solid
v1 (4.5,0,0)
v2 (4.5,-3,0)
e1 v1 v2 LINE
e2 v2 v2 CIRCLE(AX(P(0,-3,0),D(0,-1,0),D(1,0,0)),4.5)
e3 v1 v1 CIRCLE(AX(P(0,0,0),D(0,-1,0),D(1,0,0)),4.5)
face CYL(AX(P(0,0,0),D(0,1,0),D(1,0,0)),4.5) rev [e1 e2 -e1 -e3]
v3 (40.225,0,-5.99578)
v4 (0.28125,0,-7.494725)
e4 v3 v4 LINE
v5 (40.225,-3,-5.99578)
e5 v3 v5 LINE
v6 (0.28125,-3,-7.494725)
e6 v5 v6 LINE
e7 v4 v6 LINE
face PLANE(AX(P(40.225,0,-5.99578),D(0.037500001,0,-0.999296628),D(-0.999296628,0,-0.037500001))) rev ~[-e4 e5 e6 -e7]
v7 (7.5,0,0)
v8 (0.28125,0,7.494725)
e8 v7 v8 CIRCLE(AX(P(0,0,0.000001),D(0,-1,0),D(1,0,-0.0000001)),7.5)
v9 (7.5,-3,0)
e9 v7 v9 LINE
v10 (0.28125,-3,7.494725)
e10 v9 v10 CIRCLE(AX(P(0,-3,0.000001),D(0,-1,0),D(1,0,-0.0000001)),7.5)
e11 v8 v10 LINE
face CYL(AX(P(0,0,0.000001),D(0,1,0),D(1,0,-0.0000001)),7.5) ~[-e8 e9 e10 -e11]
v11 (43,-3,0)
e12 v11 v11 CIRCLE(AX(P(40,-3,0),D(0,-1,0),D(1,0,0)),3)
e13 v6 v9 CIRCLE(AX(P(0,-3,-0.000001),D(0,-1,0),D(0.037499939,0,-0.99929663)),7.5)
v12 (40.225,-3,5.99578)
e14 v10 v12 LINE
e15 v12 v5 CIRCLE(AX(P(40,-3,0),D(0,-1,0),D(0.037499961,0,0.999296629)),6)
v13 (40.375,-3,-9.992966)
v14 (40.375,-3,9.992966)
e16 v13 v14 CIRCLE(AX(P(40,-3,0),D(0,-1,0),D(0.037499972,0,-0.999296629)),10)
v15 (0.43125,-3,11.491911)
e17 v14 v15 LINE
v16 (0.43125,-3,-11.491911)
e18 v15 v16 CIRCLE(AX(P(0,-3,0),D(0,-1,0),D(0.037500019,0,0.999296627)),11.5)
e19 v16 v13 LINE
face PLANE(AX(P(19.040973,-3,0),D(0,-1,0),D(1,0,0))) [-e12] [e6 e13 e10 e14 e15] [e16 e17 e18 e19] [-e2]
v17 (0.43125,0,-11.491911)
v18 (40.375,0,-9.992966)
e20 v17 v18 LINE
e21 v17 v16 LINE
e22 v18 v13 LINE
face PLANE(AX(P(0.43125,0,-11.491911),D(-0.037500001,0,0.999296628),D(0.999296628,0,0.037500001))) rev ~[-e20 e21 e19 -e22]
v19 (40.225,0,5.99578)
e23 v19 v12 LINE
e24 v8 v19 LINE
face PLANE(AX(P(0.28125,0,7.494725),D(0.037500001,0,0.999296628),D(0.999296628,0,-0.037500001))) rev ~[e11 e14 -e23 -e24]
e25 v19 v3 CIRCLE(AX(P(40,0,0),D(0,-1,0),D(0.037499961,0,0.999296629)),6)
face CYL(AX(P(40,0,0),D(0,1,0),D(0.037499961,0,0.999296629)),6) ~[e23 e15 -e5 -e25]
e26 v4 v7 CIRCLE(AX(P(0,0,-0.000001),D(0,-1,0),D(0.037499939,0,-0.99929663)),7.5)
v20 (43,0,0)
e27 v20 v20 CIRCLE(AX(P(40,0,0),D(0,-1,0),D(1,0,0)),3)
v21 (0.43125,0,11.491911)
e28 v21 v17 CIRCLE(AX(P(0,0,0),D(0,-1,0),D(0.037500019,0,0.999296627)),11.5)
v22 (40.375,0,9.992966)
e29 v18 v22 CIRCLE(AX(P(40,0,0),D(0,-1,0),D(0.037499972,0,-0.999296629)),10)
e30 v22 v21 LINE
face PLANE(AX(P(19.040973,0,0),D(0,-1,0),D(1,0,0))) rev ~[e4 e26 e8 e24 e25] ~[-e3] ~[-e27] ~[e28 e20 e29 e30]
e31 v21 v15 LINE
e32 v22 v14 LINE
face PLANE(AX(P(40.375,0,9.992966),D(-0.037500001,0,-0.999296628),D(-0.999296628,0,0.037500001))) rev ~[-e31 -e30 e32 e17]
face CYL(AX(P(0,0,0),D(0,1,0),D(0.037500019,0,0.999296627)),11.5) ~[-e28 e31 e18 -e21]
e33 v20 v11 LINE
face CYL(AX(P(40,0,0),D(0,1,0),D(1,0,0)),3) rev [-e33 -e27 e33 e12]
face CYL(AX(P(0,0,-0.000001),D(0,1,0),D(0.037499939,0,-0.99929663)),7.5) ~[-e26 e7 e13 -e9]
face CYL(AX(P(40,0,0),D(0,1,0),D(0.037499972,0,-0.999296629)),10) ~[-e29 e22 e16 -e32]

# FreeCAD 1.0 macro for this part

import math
import FreeCAD as App
import Part
import Sketcher
from FreeCAD import Vector
Q = App.Units.Quantity

doc = App.newDocument("Part")
body = doc.addObject("PartDesign::Body", "Body")

sketch1 = body.newObject("Sketcher::SketchObject", "Sketch")
sketch1.AttachmentSupport = (doc.getObject("XZ_Plane"), [""])
sketch1.MapMode = "FlatFace"
sketch1.addGeometry(Part.LineSegment(Vector(40.4, 10, 0), Vector(0.4, 11.5, 0)), False)
sketch1.addGeometry(Part.ArcOfCircle(Part.Circle(Vector(0, 0, 0), Vector(0, 0, 1), 11.5), math.radians(88), math.radians(272)), False)
sketch1.addGeometry(Part.LineSegment(Vector(0.4, -11.5, 0), Vector(40.4, -10, 0)), False)
sketch1.addGeometry(Part.ArcOfCircle(Part.Circle(Vector(40, 0, 0), Vector(0, 0, 1), 10), math.radians(-88), math.radians(88)), False)
sketch1.addGeometry(Part.Circle(Vector(40, 0, 0), Vector(0, 0, 1), 3), False)
sketch1.addGeometry(Part.Circle(Vector(0, 0, 0), Vector(0, 0, 1), 4.5), False)
sketch1.addGeometry(Part.LineSegment(Vector(40.2, -6, 0), Vector(0.3, -7.5, 0)), False)
sketch1.addGeometry(Part.ArcOfCircle(Part.Circle(Vector(0, 0, 0), Vector(0, 0, 1), 7.5), math.radians(-88), math.radians(0)), False)
sketch1.addGeometry(Part.ArcOfCircle(Part.Circle(Vector(0, 0, 0), Vector(0, 0, 1), 7.5), math.radians(0), math.radians(88)), False)
sketch1.addGeometry(Part.LineSegment(Vector(0.3, 7.5, 0), Vector(40.2, 6, 0)), False)
sketch1.addGeometry(Part.ArcOfCircle(Part.Circle(Vector(40, 0, 0), Vector(0, 0, 1), 6), math.radians(88), math.radians(272)), False)
sketch1.addConstraint(Sketcher.Constraint("Tangent", 0, 2, 1, 1))
sketch1.addConstraint(Sketcher.Constraint("Tangent", 1, 2, 2, 1))
sketch1.addConstraint(Sketcher.Constraint("Tangent", 2, 2, 3, 1))
sketch1.addConstraint(Sketcher.Constraint("Tangent", 3, 2, 0, 1))
sketch1.addConstraint(Sketcher.Constraint("Tangent", 6, 2, 7, 1))
sketch1.addConstraint(Sketcher.Constraint("Tangent", 7, 2, 8, 1))
sketch1.addConstraint(Sketcher.Constraint("Tangent", 8, 2, 9, 1))
sketch1.addConstraint(Sketcher.Constraint("Tangent", 9, 2, 10, 1))
sketch1.addConstraint(Sketcher.Constraint("Tangent", 10, 2, 6, 1))
sketch1.addConstraint(Sketcher.Constraint("Coincident", 1, 3, -1, 1))
sketch1.addConstraint(Sketcher.Constraint("Coincident", 5, 3, -1, 1))
sketch1.addConstraint(Sketcher.Constraint("Coincident", 7, 3, -1, 1))
sketch1.addConstraint(Sketcher.Constraint("Coincident", 4, 3, 3, 3))
sketch1.addConstraint(Sketcher.Constraint("Coincident", 10, 3, 3, 3))
sketch1.addConstraint(Sketcher.Constraint("Equal", 7, 8))
sketch1.addConstraint(Sketcher.Constraint("PointOnObject", 3, 3, -1))
sketch1.addConstraint(Sketcher.Constraint("PointOnObject", 7, 2, -1))
sketch1.addConstraint(Sketcher.Constraint("Parallel", 2, 6))
sketch1.addConstraint(Sketcher.Constraint("Diameter", 4, Q("6 mm")))
sketch1.addConstraint(Sketcher.Constraint("Diameter", 5, Q("9 mm")))
sketch1.addConstraint(Sketcher.Constraint("Radius", 3, Q("10 mm")))
sketch1.addConstraint(Sketcher.Constraint("Radius", 10, Q("6 mm")))
sketch1.addConstraint(Sketcher.Constraint("Radius", 1, Q("11.5 mm")))
sketch1.addConstraint(Sketcher.Constraint("DistanceX", -1, 1, 3, 3, Q("40 mm")))
pad1 = body.newObject("PartDesign::Pad", "Pad")
pad1.Profile = sketch1
pad1.Length = 3

doc.recompute()
